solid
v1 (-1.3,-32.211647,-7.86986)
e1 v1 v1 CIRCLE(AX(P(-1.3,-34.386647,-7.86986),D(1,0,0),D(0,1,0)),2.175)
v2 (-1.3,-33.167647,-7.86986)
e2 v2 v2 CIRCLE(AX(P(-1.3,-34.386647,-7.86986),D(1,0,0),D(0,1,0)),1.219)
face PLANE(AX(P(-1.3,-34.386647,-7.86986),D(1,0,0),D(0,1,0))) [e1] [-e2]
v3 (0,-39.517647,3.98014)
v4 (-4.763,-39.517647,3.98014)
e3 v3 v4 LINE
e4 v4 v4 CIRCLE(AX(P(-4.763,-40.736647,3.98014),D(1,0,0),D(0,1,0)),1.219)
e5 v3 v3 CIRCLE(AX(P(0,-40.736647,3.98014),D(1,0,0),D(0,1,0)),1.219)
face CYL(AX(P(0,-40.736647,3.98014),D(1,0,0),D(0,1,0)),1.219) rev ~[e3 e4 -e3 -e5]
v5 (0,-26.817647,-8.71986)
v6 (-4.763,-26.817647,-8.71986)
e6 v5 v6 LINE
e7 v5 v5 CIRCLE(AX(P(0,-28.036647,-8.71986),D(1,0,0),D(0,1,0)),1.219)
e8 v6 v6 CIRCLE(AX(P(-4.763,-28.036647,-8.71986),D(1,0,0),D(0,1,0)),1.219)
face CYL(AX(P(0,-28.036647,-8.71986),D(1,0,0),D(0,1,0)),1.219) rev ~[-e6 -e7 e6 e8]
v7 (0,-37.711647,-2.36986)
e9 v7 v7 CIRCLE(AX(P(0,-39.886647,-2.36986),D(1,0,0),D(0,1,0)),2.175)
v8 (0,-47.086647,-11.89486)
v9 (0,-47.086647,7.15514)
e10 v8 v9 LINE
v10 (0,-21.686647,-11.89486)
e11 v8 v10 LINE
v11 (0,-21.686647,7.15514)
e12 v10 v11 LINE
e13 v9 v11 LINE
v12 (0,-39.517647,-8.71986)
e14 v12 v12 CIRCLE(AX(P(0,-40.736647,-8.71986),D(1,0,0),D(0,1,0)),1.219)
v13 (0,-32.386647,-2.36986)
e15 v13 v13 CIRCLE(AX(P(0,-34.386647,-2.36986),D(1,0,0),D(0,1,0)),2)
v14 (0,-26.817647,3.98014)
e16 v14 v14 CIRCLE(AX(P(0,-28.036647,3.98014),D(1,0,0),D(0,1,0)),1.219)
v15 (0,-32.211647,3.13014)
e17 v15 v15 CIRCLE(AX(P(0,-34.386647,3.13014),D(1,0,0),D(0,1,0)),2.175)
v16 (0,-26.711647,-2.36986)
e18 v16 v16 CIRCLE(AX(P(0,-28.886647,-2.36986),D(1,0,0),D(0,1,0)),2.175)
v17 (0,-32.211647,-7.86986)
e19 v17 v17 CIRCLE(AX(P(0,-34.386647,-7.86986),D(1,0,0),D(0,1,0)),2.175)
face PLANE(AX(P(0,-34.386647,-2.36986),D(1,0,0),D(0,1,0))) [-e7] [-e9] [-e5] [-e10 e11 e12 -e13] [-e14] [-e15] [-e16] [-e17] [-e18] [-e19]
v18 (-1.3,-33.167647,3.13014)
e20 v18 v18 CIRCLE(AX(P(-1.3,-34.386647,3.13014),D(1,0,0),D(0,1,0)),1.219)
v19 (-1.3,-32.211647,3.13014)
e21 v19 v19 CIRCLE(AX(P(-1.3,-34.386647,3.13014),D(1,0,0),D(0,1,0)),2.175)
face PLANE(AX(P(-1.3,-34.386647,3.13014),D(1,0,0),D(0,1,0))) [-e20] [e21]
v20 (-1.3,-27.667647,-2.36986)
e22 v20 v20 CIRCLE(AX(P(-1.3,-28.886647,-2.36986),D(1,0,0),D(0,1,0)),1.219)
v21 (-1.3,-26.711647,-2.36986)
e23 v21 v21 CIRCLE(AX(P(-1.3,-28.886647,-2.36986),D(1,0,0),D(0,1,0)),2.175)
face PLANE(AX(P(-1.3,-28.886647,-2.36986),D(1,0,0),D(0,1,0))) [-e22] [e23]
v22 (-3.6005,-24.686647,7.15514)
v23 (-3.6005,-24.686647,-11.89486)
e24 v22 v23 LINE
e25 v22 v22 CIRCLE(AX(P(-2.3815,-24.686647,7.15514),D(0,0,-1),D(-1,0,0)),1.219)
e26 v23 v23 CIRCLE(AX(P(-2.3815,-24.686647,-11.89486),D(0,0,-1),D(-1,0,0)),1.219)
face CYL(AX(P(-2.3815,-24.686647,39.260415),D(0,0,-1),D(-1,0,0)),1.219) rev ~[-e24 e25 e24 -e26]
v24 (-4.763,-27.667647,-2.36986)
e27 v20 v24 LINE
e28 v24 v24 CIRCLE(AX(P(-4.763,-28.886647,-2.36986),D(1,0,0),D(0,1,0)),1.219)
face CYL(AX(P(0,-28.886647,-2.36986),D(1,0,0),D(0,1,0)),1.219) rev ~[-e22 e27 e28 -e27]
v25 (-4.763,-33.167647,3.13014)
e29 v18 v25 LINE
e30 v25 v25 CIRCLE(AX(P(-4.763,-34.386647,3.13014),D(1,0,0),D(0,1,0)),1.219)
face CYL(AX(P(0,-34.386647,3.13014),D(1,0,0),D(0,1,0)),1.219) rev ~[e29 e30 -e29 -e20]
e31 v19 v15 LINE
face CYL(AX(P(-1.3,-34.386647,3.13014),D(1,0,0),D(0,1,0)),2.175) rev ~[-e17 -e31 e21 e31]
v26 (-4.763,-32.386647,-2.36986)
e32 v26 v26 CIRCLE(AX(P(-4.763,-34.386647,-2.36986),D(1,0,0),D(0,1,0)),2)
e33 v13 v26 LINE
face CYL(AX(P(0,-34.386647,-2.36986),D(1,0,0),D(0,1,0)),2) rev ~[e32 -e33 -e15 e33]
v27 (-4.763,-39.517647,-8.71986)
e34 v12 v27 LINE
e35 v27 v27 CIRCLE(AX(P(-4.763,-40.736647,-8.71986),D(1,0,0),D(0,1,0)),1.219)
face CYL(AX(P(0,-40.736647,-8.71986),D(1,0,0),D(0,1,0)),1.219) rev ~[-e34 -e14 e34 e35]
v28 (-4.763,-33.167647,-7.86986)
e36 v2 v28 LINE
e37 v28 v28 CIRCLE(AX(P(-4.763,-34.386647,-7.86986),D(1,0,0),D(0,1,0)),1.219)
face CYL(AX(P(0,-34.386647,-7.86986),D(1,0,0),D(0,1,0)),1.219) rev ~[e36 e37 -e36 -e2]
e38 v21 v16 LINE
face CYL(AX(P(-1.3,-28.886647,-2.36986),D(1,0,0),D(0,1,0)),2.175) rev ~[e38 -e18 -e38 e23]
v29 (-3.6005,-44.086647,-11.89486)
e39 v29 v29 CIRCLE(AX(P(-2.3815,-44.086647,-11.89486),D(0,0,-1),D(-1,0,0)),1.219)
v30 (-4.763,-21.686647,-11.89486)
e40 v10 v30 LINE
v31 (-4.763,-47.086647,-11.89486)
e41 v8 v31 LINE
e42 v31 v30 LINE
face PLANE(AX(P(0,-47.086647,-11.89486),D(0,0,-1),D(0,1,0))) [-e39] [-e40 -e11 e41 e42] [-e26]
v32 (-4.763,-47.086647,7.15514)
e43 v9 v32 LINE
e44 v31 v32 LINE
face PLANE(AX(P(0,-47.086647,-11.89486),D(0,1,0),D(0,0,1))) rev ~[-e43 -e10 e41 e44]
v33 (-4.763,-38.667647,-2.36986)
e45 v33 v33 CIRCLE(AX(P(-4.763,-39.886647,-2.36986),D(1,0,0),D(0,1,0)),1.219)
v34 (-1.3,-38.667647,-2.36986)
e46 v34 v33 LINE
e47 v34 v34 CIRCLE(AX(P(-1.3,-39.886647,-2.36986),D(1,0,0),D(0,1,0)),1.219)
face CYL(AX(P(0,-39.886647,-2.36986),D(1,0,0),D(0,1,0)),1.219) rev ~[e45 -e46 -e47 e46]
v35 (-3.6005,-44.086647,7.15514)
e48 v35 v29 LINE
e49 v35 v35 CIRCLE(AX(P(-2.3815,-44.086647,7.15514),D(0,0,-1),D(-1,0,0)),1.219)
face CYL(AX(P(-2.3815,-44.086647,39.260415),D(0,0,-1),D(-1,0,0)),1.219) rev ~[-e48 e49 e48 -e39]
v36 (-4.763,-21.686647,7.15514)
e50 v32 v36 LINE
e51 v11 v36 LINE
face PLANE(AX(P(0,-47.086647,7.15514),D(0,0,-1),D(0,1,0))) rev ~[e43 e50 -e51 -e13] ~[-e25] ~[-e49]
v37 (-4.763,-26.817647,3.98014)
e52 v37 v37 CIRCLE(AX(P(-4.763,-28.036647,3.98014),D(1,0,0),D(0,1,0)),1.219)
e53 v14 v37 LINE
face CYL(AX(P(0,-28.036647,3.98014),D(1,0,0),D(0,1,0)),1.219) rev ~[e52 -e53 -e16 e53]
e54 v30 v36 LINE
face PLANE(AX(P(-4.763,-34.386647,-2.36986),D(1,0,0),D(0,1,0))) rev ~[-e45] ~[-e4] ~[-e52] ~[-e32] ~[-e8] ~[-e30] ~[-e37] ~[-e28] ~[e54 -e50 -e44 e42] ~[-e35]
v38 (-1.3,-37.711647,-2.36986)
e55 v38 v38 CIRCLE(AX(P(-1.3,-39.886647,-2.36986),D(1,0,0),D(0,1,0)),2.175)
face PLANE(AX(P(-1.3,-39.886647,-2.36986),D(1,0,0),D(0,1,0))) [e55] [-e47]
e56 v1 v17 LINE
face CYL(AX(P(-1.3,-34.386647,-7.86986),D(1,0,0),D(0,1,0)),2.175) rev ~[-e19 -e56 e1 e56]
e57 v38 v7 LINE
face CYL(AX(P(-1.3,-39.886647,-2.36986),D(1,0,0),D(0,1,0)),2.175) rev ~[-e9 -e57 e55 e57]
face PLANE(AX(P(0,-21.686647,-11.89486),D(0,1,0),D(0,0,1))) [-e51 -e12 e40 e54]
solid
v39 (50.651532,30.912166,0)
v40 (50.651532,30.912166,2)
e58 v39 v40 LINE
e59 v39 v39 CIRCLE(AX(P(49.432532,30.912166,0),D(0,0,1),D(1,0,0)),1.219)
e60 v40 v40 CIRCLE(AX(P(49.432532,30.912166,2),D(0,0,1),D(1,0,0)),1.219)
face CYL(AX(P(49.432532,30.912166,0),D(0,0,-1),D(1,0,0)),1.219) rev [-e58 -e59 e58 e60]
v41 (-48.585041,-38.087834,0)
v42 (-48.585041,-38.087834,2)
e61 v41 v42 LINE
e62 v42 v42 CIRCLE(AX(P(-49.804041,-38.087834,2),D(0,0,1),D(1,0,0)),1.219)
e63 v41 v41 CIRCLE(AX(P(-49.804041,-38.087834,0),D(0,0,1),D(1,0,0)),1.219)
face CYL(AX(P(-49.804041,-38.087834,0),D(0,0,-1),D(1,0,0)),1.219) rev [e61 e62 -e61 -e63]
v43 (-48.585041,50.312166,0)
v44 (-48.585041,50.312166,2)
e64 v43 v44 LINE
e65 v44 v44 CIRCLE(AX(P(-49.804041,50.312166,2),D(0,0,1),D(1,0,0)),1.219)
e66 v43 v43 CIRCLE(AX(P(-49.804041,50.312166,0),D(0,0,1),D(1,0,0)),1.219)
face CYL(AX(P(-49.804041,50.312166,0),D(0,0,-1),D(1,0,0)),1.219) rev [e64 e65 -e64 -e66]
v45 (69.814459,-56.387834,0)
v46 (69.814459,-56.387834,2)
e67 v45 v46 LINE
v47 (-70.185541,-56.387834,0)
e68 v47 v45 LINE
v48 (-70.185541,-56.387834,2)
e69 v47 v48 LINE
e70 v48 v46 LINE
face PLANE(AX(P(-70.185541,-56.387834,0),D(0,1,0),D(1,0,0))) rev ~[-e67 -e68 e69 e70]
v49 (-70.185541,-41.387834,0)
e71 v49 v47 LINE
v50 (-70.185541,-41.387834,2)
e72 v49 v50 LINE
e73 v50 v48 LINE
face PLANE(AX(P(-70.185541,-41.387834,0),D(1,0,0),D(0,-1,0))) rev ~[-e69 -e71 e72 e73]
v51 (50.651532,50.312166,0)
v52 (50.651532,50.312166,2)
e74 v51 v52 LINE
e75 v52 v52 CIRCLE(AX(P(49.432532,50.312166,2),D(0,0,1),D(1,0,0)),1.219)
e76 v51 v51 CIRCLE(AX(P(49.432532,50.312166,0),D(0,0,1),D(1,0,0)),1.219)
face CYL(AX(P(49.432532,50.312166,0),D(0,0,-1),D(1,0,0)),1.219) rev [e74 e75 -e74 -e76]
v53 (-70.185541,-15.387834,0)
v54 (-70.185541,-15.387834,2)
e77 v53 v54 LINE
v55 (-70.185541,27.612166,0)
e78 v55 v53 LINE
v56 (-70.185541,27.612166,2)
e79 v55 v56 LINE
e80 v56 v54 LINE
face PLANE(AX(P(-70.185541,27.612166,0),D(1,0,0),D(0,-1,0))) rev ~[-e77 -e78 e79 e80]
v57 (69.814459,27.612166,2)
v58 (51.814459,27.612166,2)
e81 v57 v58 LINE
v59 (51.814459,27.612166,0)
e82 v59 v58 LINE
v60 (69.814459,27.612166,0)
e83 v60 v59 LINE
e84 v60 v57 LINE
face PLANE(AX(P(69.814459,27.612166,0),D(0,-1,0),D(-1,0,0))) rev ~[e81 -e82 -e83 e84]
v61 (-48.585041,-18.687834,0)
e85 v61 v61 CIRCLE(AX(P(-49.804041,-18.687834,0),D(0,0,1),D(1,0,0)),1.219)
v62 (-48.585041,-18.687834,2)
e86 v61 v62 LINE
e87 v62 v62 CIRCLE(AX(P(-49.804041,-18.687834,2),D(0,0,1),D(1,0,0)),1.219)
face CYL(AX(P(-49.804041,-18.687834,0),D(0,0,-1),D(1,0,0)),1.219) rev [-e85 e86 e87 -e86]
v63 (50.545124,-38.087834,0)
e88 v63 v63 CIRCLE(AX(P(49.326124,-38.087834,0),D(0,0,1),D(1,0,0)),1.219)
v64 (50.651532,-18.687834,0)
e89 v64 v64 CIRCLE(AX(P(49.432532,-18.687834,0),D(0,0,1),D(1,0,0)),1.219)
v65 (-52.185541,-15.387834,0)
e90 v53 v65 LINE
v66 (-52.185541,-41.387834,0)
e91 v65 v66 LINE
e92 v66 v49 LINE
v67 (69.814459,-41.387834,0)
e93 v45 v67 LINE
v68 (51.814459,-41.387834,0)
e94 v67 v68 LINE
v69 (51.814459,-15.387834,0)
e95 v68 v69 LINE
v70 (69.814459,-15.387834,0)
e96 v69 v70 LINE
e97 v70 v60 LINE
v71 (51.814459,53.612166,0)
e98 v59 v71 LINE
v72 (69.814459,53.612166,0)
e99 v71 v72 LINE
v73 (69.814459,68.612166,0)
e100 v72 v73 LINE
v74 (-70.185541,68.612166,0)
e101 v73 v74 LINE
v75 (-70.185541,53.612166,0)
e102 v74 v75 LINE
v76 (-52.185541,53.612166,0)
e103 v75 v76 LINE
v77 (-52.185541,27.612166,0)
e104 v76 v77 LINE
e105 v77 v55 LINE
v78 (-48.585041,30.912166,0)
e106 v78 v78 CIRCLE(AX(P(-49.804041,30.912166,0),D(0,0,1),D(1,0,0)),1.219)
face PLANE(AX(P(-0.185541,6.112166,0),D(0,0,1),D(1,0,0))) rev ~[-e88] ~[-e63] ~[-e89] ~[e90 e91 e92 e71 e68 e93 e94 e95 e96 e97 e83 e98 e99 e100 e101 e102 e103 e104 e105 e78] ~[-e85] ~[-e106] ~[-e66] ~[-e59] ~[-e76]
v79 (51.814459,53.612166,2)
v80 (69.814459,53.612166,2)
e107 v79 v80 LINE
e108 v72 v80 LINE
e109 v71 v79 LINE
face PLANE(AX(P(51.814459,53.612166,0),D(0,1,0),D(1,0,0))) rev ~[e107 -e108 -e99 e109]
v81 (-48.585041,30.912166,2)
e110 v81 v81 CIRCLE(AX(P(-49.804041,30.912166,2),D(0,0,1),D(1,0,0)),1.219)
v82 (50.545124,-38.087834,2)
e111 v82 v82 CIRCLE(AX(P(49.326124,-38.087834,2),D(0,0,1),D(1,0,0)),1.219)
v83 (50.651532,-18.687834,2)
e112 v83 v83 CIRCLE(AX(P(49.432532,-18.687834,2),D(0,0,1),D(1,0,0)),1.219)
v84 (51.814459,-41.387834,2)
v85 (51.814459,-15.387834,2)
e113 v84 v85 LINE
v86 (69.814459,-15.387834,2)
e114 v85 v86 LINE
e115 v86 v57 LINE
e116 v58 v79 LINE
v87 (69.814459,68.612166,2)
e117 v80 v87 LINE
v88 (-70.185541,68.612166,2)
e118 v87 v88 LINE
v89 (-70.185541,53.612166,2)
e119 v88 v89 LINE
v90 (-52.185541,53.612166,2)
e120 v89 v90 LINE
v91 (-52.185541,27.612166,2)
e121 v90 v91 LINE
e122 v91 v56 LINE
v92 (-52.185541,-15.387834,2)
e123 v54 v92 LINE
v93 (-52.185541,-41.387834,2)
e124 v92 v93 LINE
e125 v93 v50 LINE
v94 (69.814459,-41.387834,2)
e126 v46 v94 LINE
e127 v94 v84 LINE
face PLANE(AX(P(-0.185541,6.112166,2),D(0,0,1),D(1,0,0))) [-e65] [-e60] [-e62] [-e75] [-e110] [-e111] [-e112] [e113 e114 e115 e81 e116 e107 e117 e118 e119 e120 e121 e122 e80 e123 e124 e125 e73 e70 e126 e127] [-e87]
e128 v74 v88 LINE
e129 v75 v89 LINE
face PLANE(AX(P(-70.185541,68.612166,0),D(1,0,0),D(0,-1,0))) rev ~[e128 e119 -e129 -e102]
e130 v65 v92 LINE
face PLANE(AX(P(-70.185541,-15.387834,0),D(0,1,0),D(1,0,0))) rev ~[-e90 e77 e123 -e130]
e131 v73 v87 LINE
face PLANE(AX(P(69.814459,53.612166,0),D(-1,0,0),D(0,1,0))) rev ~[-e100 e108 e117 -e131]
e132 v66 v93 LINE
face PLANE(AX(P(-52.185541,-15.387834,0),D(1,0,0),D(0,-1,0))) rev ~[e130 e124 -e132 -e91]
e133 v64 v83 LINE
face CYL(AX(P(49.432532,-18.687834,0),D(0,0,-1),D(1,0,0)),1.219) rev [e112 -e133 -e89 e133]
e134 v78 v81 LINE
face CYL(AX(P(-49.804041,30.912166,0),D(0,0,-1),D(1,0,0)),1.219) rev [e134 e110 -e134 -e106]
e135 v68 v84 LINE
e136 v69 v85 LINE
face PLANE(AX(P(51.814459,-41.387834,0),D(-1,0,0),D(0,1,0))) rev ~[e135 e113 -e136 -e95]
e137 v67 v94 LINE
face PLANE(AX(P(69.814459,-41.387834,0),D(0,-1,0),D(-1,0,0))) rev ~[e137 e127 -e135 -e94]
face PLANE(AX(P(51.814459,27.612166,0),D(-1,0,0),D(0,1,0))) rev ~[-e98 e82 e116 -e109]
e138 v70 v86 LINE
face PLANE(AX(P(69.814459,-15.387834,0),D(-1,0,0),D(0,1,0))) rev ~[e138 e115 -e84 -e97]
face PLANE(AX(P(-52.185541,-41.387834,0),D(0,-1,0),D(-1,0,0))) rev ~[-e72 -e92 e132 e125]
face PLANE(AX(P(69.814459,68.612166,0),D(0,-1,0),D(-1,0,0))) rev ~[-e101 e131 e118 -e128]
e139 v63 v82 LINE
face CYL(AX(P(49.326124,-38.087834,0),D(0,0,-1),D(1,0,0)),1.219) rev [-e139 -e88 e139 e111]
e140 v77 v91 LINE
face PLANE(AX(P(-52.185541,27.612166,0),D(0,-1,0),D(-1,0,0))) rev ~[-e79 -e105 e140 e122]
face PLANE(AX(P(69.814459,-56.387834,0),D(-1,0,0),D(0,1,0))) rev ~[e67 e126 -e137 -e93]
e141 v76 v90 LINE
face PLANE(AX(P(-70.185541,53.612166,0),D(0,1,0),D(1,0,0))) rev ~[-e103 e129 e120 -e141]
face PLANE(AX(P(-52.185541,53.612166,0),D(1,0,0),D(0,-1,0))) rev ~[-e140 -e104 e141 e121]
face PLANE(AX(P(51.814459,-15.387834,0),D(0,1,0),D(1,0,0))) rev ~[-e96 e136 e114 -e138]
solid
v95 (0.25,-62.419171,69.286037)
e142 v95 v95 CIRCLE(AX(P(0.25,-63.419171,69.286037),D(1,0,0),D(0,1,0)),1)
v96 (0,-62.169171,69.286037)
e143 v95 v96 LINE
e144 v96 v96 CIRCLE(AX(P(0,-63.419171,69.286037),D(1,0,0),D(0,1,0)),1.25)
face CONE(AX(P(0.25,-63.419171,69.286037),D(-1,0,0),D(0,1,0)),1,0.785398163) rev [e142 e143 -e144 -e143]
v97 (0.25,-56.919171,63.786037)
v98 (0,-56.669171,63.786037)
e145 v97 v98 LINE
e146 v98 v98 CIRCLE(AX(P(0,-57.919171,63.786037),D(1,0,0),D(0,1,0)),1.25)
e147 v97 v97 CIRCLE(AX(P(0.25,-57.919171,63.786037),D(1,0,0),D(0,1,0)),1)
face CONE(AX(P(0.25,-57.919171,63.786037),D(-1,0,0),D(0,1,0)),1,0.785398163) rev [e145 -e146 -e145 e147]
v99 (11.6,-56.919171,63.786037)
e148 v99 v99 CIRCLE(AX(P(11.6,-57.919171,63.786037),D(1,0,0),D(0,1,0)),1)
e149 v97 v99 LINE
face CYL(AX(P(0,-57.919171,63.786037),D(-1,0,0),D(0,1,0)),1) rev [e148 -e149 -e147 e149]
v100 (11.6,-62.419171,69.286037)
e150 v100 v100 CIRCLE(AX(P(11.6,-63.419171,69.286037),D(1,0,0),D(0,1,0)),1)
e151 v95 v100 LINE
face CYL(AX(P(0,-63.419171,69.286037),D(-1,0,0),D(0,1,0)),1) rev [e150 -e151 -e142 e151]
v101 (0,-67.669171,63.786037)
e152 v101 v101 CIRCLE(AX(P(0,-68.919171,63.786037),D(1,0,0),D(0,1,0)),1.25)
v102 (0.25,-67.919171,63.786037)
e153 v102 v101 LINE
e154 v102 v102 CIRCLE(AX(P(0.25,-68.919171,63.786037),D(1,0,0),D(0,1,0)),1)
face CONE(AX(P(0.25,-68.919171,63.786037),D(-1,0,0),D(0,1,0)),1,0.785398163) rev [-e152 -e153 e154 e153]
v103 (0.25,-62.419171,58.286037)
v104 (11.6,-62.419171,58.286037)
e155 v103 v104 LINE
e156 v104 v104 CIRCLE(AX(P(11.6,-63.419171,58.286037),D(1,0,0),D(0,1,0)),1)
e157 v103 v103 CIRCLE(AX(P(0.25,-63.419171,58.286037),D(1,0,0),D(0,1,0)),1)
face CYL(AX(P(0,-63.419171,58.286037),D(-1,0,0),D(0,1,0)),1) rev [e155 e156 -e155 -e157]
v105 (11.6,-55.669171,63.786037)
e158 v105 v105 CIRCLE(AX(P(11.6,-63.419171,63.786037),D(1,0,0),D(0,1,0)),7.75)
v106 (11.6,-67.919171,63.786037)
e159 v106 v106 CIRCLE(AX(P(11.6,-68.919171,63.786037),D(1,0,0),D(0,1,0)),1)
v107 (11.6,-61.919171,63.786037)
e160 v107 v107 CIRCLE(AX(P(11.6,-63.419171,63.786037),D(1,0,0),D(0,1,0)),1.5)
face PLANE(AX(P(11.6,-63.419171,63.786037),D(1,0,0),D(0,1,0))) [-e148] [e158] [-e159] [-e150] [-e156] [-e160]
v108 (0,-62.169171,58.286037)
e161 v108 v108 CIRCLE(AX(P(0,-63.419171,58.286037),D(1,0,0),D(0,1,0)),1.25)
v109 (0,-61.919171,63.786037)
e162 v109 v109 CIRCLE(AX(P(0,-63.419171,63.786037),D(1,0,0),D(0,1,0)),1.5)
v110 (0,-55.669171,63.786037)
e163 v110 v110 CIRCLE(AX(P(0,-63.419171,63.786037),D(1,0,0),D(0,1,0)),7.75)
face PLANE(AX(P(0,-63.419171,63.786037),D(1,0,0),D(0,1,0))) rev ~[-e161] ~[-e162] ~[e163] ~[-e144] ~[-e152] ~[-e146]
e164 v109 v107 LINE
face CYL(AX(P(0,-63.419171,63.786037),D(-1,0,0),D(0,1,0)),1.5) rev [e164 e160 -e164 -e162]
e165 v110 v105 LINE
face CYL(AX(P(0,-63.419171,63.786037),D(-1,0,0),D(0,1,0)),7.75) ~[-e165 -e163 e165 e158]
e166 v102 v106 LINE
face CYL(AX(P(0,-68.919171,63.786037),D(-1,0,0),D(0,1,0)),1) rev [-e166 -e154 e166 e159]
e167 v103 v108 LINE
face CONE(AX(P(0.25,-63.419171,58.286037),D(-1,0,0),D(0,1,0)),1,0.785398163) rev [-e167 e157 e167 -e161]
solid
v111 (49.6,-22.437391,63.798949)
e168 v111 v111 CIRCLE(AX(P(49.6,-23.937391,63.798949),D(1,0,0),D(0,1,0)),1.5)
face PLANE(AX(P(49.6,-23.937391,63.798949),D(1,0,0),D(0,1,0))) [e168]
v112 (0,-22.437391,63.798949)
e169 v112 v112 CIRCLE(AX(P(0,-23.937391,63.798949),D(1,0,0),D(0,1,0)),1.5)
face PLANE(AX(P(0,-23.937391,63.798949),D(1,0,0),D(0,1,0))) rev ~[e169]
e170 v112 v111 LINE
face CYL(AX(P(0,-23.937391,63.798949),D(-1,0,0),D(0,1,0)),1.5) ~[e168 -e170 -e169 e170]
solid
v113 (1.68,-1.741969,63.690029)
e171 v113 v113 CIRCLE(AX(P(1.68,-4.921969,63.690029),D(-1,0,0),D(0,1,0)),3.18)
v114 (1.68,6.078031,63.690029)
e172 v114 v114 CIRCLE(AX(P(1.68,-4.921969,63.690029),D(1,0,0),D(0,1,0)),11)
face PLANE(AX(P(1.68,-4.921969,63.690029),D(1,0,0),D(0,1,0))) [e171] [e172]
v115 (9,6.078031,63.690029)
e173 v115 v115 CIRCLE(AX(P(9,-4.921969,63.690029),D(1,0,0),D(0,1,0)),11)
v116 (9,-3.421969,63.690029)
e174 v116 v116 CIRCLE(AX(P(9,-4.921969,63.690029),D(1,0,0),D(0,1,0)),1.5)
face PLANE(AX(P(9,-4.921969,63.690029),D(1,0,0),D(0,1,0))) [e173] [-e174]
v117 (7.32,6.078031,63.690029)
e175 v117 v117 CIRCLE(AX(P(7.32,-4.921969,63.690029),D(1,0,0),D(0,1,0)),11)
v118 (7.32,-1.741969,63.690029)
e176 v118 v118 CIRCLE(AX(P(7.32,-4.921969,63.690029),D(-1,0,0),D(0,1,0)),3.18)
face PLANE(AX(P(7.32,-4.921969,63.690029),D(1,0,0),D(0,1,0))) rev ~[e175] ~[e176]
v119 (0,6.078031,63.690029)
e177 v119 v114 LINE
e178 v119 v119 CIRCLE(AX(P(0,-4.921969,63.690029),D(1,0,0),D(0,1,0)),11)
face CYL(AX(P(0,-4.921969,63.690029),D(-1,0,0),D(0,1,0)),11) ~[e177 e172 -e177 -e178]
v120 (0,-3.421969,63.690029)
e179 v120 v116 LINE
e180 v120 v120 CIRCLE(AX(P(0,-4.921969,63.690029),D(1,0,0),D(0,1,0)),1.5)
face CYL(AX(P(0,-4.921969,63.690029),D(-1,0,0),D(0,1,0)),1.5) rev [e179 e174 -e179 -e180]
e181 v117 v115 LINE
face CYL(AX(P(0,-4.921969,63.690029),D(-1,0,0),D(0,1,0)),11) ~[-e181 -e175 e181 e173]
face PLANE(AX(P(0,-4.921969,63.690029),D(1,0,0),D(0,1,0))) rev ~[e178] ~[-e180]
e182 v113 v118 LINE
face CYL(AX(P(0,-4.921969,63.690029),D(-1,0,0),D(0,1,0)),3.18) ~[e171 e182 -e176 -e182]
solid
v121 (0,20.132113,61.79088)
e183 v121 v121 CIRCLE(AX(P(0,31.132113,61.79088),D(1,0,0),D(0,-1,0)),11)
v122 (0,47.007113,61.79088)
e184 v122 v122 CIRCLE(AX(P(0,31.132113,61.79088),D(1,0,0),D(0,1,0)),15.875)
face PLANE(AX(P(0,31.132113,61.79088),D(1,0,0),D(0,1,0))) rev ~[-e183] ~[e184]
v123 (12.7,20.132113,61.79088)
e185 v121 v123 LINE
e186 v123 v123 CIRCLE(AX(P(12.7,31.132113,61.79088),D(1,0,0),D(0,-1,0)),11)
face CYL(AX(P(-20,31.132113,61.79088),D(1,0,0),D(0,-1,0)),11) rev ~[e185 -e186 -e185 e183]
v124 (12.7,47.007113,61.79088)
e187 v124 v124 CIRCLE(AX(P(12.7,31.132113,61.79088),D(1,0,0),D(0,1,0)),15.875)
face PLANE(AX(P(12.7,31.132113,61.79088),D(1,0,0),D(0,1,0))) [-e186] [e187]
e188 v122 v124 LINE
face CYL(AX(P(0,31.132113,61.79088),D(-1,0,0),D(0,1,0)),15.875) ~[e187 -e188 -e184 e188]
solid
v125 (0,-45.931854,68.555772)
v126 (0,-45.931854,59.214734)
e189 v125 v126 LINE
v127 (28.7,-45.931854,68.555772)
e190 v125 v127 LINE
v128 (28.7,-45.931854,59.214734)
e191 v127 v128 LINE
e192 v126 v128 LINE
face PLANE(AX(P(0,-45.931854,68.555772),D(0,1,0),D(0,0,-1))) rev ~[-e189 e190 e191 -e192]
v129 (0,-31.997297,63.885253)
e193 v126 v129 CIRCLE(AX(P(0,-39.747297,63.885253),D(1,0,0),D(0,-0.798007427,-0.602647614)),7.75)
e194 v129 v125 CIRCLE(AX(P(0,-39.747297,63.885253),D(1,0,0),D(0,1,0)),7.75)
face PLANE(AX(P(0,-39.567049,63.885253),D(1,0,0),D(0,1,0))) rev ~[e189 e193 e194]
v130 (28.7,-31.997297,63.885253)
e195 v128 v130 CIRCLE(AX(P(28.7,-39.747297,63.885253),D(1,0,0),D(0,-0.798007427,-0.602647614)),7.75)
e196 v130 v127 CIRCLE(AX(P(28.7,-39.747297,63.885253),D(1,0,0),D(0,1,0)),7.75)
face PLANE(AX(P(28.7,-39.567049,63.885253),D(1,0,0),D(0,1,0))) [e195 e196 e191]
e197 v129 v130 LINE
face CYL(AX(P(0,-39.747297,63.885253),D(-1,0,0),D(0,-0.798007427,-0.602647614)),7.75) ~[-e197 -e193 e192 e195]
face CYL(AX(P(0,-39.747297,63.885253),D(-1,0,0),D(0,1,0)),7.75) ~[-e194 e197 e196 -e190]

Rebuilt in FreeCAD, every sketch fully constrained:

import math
import FreeCAD as App
import Part
import Sketcher
from FreeCAD import Vector


def edges_at(feature, points):
    """Names of the edges that pass closest to the given points."""
    edges = feature.Shape.Edges
    near = lambda p: min(range(len(edges)), key=lambda i: edges[i].distToShape(Part.Vertex(*p))[0])
    return sorted({f"Edge{near(p) + 1}" for p in points})


def faces_at(feature, points):
    """Names of the faces that lie closest to the given points."""
    faces = feature.Shape.Faces
    near = lambda p: min(range(len(faces)), key=lambda i: faces[i].distToShape(Part.Vertex(*p))[0])
    return sorted({f"Face{near(p) + 1}" for p in points})


def add_polygon(sketch, points):
    """Adds a closed chain of lines whose ends are joined by coincident constraints."""
    first, n = sketch.GeometryCount, len(points)
    for a, b in zip(points, points[1:] + points[:1]):
        sketch.addGeometry(Part.LineSegment(App.Vector(*a, 0), App.Vector(*b, 0)), False)
    for i in range(n):
        sketch.addConstraint(Sketcher.Constraint("Coincident", first + i, 2, first + (i + 1) % n, 1))

doc = App.newDocument("Part")
body = doc.addObject("PartDesign::Body", "Body")

sketch1 = body.newObject("Sketcher::SketchObject", "Sketch")
sketch1.AttachmentSupport = (doc.getObject("XY_Plane"), [""])
sketch1.MapMode = "FlatFace"
add_polygon(sketch1, [(69.8, 53.6), (69.8, 68.6), (-70.2, 68.6), (-70.2, 53.6), (-52.2, 53.6), (-52.2, 27.6), (-70.2, 27.6), (-70.2, -15.4), (-52.2, -15.4), (-52.2, -41.4), (-70.2, -41.4), (-70.2, -56.4), (69.8, -56.4), (69.8, -41.4), (51.8, -41.4), (51.8, -15.4), (69.8, -15.4), (69.8, 27.6), (51.8, 27.6), (51.8, 53.6)])
sketch1.addGeometry(Part.Circle(Vector(-49.8, -38.1, 0), Vector(0, 0, 1), 1.2), False)
sketch1.addGeometry(Part.Circle(Vector(-49.8, -18.7, 0), Vector(0, 0, 1), 1.2), False)
sketch1.addGeometry(Part.Circle(Vector(49.3, -38.1, 0), Vector(0, 0, 1), 1.2), False)
sketch1.addGeometry(Part.Circle(Vector(49.4, -18.7, 0), Vector(0, 0, 1), 1.2), False)
sketch1.addGeometry(Part.Circle(Vector(-49.8, 30.9, 0), Vector(0, 0, 1), 1.2), False)
sketch1.addGeometry(Part.Circle(Vector(-49.8, 50.3, 0), Vector(0, 0, 1), 1.2), False)
sketch1.addGeometry(Part.Circle(Vector(49.4, 30.9, 0), Vector(0, 0, 1), 1.2), False)
sketch1.addGeometry(Part.Circle(Vector(49.4, 50.3, 0), Vector(0, 0, 1), 1.2), False)
sketch1.addConstraint(Sketcher.Constraint("Vertical", 0))
sketch1.addConstraint(Sketcher.Constraint("Horizontal", 1))
sketch1.addConstraint(Sketcher.Constraint("Vertical", 2))
sketch1.addConstraint(Sketcher.Constraint("Horizontal", 3))
sketch1.addConstraint(Sketcher.Constraint("Vertical", 4))
sketch1.addConstraint(Sketcher.Constraint("Horizontal", 5))
sketch1.addConstraint(Sketcher.Constraint("Vertical", 6))
sketch1.addConstraint(Sketcher.Constraint("Horizontal", 7))
sketch1.addConstraint(Sketcher.Constraint("Vertical", 8))
sketch1.addConstraint(Sketcher.Constraint("Horizontal", 9))
sketch1.addConstraint(Sketcher.Constraint("Vertical", 10))
sketch1.addConstraint(Sketcher.Constraint("Horizontal", 11))
sketch1.addConstraint(Sketcher.Constraint("Vertical", 12))
sketch1.addConstraint(Sketcher.Constraint("Horizontal", 13))
sketch1.addConstraint(Sketcher.Constraint("Vertical", 14))
sketch1.addConstraint(Sketcher.Constraint("Horizontal", 15))
sketch1.addConstraint(Sketcher.Constraint("Vertical", 16))
sketch1.addConstraint(Sketcher.Constraint("Horizontal", 17))
sketch1.addConstraint(Sketcher.Constraint("Vertical", 18))
sketch1.addConstraint(Sketcher.Constraint("Horizontal", 19))
sketch1.addConstraint(Sketcher.Constraint("Equal", 20, 21))
sketch1.addConstraint(Sketcher.Constraint("Equal", 21, 22))
sketch1.addConstraint(Sketcher.Constraint("Equal", 22, 23))
sketch1.addConstraint(Sketcher.Constraint("Equal", 23, 24))
sketch1.addConstraint(Sketcher.Constraint("Equal", 24, 25))
sketch1.addConstraint(Sketcher.Constraint("Equal", 25, 26))
sketch1.addConstraint(Sketcher.Constraint("Equal", 26, 27))
sketch1.addConstraint(Sketcher.Constraint("Horizontal", 20, 3, 22, 3))
sketch1.addConstraint(Sketcher.Constraint("Horizontal", 21, 3, 23, 3))
sketch1.addConstraint(Sketcher.Constraint("Horizontal", 24, 3, 26, 3))
sketch1.addConstraint(Sketcher.Constraint("Horizontal", 25, 3, 27, 3))
sketch1.addConstraint(Sketcher.Constraint("Horizontal", 9, 2, 12, 2))
sketch1.addConstraint(Sketcher.Constraint("Horizontal", 7, 2, 14, 2))
sketch1.addConstraint(Sketcher.Constraint("Horizontal", 5, 2, 16, 2))
sketch1.addConstraint(Sketcher.Constraint("Horizontal", 3, 2, 18, 2))
sketch1.addConstraint(Sketcher.Constraint("Vertical", 20, 3, 21, 3))
sketch1.addConstraint(Sketcher.Constraint("Vertical", 21, 3, 24, 3))
sketch1.addConstraint(Sketcher.Constraint("Vertical", 24, 3, 25, 3))
sketch1.addConstraint(Sketcher.Constraint("Vertical", 23, 3, 26, 3))
sketch1.addConstraint(Sketcher.Constraint("Vertical", 26, 3, 27, 3))
sketch1.addConstraint(Sketcher.Constraint("Vertical", 2, 2, 5, 2))
sketch1.addConstraint(Sketcher.Constraint("Vertical", 4, 2, 7, 2))
sketch1.addConstraint(Sketcher.Constraint("Vertical", 6, 2, 9, 2))
sketch1.addConstraint(Sketcher.Constraint("Vertical", 0, 2, 11, 2))
sketch1.addConstraint(Sketcher.Constraint("Vertical", 12, 2, 15, 2))
sketch1.addConstraint(Sketcher.Constraint("Vertical", 14, 2, 17, 2))
sketch1.addConstraint(Sketcher.Constraint("Equal", 9, 13))
sketch1.addConstraint(Sketcher.Constraint("Equal", 4, 8))
sketch1.addConstraint(Sketcher.Constraint("Equal", 2, 10))
sketch1.addConstraint(Sketcher.Constraint("DistanceX", 1, 2, 1, 1, 140.0))
sketch1.addConstraint(Sketcher.Constraint("DistanceX", 3, 1, 3, 2, 18.0))
sketch1.addConstraint(Sketcher.Constraint("DistanceY", 0, 1, 0, 2, 15.0))
sketch1.addConstraint(Sketcher.Constraint("DistanceY", 4, 2, 4, 1, 26.0))
sketch1.addConstraint(Sketcher.Constraint("DistanceY", 6, 2, 6, 1, 43.0))
sketch1.addConstraint(Sketcher.Constraint("Diameter", 20, 2.438))
sketch1.addConstraint(Sketcher.Constraint("DistanceY", 20, 3, 24, 3, 69.0))
sketch1.addConstraint(Sketcher.Constraint("DistanceY", 21, 3, 25, 3, 69.0))
sketch1.addConstraint(Sketcher.Constraint("DistanceY", 20, 3, 21, 3, 19.4))
sketch1.addConstraint(Sketcher.Constraint("DistanceY", 27, 3, 0, 2, 18.3))
sketch1.addConstraint(Sketcher.Constraint("DistanceX", 25, 3, 0, 2, 119.6185))
sketch1.addConstraint(Sketcher.Constraint("DistanceX", 20, 3, -1, 1, 49.804041))
sketch1.addConstraint(Sketcher.Constraint("DistanceX", 22, 3, 23, 3, 0.106408))
sketch1.addConstraint(Sketcher.Constraint("DistanceY", 20, 3, -1, 1, 38.087834))
sketch1.addConstraint(Sketcher.Constraint("DistanceX", -1, 1, 22, 3, 49.326124))
pad1 = body.newObject("PartDesign::Pad", "Pad")
pad1.Profile = sketch1
pad1.Length = 2
body2 = doc.addObject("PartDesign::Body", "Body001")

sketch2 = body2.newObject("Sketcher::SketchObject", "Sketch001")
sketch2.AttachmentSupport = (doc.getObject("YZ_Plane001"), [""])
sketch2.MapMode = "FlatFace"
add_polygon(sketch2, [(-47.1, 7.2), (-47.1, -11.9), (-21.7, -11.9), (-21.7, 7.2)])
sketch2.addGeometry(Part.Circle(Vector(-40.7, -8.7, 0), Vector(0, 0, 1), 1.2), False)
sketch2.addGeometry(Part.Circle(Vector(-39.9, -2.4, 0), Vector(0, 0, 1), 1.2), False)
sketch2.addGeometry(Part.Circle(Vector(-34.4, -7.9, 0), Vector(0, 0, 1), 1.2), False)
sketch2.addGeometry(Part.Circle(Vector(-28, -8.7, 0), Vector(0, 0, 1), 1.2), False)
sketch2.addGeometry(Part.Circle(Vector(-34.4, -2.4, 0), Vector(0, 0, 1), 2), False)
sketch2.addGeometry(Part.Circle(Vector(-28.9, -2.4, 0), Vector(0, 0, 1), 1.2), False)
sketch2.addGeometry(Part.Circle(Vector(-40.7, 4, 0), Vector(0, 0, 1), 1.2), False)
sketch2.addGeometry(Part.Circle(Vector(-34.4, 3.1, 0), Vector(0, 0, 1), 1.2), False)
sketch2.addGeometry(Part.Circle(Vector(-28, 4, 0), Vector(0, 0, 1), 1.2), False)
sketch2.addConstraint(Sketcher.Constraint("Vertical", 0))
sketch2.addConstraint(Sketcher.Constraint("Horizontal", 1))
sketch2.addConstraint(Sketcher.Constraint("Vertical", 2))
sketch2.addConstraint(Sketcher.Constraint("Horizontal", 3))
sketch2.addConstraint(Sketcher.Constraint("Equal", 4, 5))
sketch2.addConstraint(Sketcher.Constraint("Equal", 5, 6))
sketch2.addConstraint(Sketcher.Constraint("Equal", 6, 7))
sketch2.addConstraint(Sketcher.Constraint("Equal", 7, 9))
sketch2.addConstraint(Sketcher.Constraint("Equal", 9, 10))
sketch2.addConstraint(Sketcher.Constraint("Equal", 10, 11))
sketch2.addConstraint(Sketcher.Constraint("Equal", 11, 12))
sketch2.addConstraint(Sketcher.Constraint("Horizontal", 4, 3, 7, 3))
sketch2.addConstraint(Sketcher.Constraint("Horizontal", 5, 3, 8, 3))
sketch2.addConstraint(Sketcher.Constraint("Horizontal", 8, 3, 9, 3))
sketch2.addConstraint(Sketcher.Constraint("Horizontal", 10, 3, 12, 3))
sketch2.addConstraint(Sketcher.Constraint("Vertical", 6, 3, 8, 3))
sketch2.addConstraint(Sketcher.Constraint("Vertical", 4, 3, 10, 3))
sketch2.addConstraint(Sketcher.Constraint("Vertical", 8, 3, 11, 3))
sketch2.addConstraint(Sketcher.Constraint("Vertical", 7, 3, 12, 3))
sketch2.addConstraint(Sketcher.Constraint("Diameter", 8, 4.0))
sketch2.addConstraint(Sketcher.Constraint("Diameter", 4, 2.438))
sketch2.addConstraint(Sketcher.Constraint("DistanceX", 1, 1, 1, 2, 25.4))
sketch2.addConstraint(Sketcher.Constraint("DistanceX", 5, 3, 9, 3, 11.0))
sketch2.addConstraint(Sketcher.Constraint("DistanceY", 6, 3, 11, 3, 11.0))
sketch2.addConstraint(Sketcher.Constraint("DistanceY", 0, 2, 0, 1, 19.05))
sketch2.addConstraint(Sketcher.Constraint("DistanceX", 5, 3, 6, 3, 5.5))
sketch2.addConstraint(Sketcher.Constraint("DistanceY", 6, 3, 5, 3, 5.5))
sketch2.addConstraint(Sketcher.Constraint("DistanceX", 4, 3, 7, 3, 12.7))
sketch2.addConstraint(Sketcher.Constraint("DistanceY", 4, 3, 10, 3, 12.7))
sketch2.addConstraint(Sketcher.Constraint("DistanceX", 0, 2, 5, 3, 7.2))
sketch2.addConstraint(Sketcher.Constraint("DistanceX", 4, 3, 5, 3, 0.85))
sketch2.addConstraint(Sketcher.Constraint("DistanceY", 4, 3, 5, 3, 6.35))
sketch2.addConstraint(Sketcher.Constraint("DistanceY", 0, 2, 4, 3, 3.175))
sketch2.addConstraint(Sketcher.Constraint("DistanceY", 4, 3, -1, 1, 8.71986))
sketch2.addConstraint(Sketcher.Constraint("DistanceX", 4, 3, -1, 1, 40.736647))
pad2 = body2.newObject("PartDesign::Pad", "Pad001")
pad2.Profile = sketch2
pad2.Length = 4.763
pad2.Reversed = True

sketch3 = body2.newObject("Sketcher::SketchObject", "Sketch002")
sketch3.AttachmentSupport = (doc.getObject("YZ_Plane001"), [""])
sketch3.MapMode = "FlatFace"
sketch3.addGeometry(Part.Circle(Vector(-39.9, -2.4, 0), Vector(0, 0, 1), 1.2), False)
sketch3.addGeometry(Part.Circle(Vector(-34.4, 3.1, 0), Vector(0, 0, 1), 1.2), False)
sketch3.addGeometry(Part.Circle(Vector(-28.9, -2.4, 0), Vector(0, 0, 1), 1.2), False)
sketch3.addGeometry(Part.Circle(Vector(-34.4, -7.9, 0), Vector(0, 0, 1), 1.2), False)
sketch3.addConstraint(Sketcher.Constraint("Equal", 0, 1))
sketch3.addConstraint(Sketcher.Constraint("Equal", 1, 2))
sketch3.addConstraint(Sketcher.Constraint("Equal", 2, 3))
sketch3.addConstraint(Sketcher.Constraint("Horizontal", 0, 3, 2, 3))
sketch3.addConstraint(Sketcher.Constraint("Vertical", 1, 3, 3, 3))
sketch3.addConstraint(Sketcher.Constraint("Diameter", 0, 2.438))
sketch3.addConstraint(Sketcher.Constraint("DistanceX", 0, 3, 2, 3, 11.0))
sketch3.addConstraint(Sketcher.Constraint("DistanceY", 3, 3, 1, 3, 11.0))
sketch3.addConstraint(Sketcher.Constraint("DistanceX", 0, 3, 1, 3, 5.5))
sketch3.addConstraint(Sketcher.Constraint("DistanceY", 0, 3, 1, 3, 5.5))
sketch3.addConstraint(Sketcher.Constraint("DistanceY", 0, 3, -1, 1, 2.36986))
sketch3.addConstraint(Sketcher.Constraint("DistanceX", 0, 3, -1, 1, 39.886647))
doc.recompute()
hole = body2.newObject("PartDesign::Hole", "Hole")
hole.Profile = sketch3
hole.ThreadType = "None"
hole.Diameter = 2.438
hole.DepthType = "ThroughAll"
hole.HoleCutType = "Counterbore"
hole.HoleCutDiameter = 4.35
hole.HoleCutDepth = 1.3

sketch4 = body2.newObject("Sketcher::SketchObject", "Sketch003")
sketch4.AttachmentSupport = (doc.getObject("XY_Plane001"), [""])
sketch4.MapMode = "FlatFace"
sketch4.AttachmentOffset = App.Placement(Vector(0, 0, 7.15514), App.Rotation())
sketch4.addGeometry(Part.Circle(Vector(-2.4, -44.1, 0), Vector(0, 0, 1), 1.2), False)
sketch4.addGeometry(Part.Circle(Vector(-2.4, -24.7, 0), Vector(0, 0, 1), 1.2), False)
sketch4.addConstraint(Sketcher.Constraint("Equal", 0, 1))
sketch4.addConstraint(Sketcher.Constraint("Vertical", 0, 3, 1, 3))
sketch4.addConstraint(Sketcher.Constraint("Diameter", 0, 2.438))
sketch4.addConstraint(Sketcher.Constraint("DistanceY", 0, 3, 1, 3, 19.4))
sketch4.addConstraint(Sketcher.Constraint("DistanceX", 0, 3, -1, 1, 2.3815))
sketch4.addConstraint(Sketcher.Constraint("DistanceY", 0, 3, -1, 1, 44.086647))
doc.recompute()
hole2 = body2.newObject("PartDesign::Hole", "Hole001")
hole2.Profile = sketch4
hole2.ThreadType = "None"
hole2.Diameter = 2.438
hole2.DepthType = "ThroughAll"
body3 = doc.addObject("PartDesign::Body", "Body002")

sketch5 = body3.newObject("Sketcher::SketchObject", "Sketch004")
sketch5.AttachmentSupport = (doc.getObject("YZ_Plane002"), [""])
sketch5.MapMode = "FlatFace"
sketch5.addGeometry(Part.Circle(Vector(-63.4, 63.8, 0), Vector(0, 0, 1), 7.8), False)
sketch5.addGeometry(Part.Circle(Vector(-63.4, 58.3, 0), Vector(0, 0, 1), 1), False)
sketch5.addGeometry(Part.Circle(Vector(-68.9, 63.8, 0), Vector(0, 0, 1), 1), False)
sketch5.addGeometry(Part.Circle(Vector(-63.4, 63.8, 0), Vector(0, 0, 1), 1.5), False)
sketch5.addGeometry(Part.Circle(Vector(-63.4, 69.3, 0), Vector(0, 0, 1), 1), False)
sketch5.addGeometry(Part.Circle(Vector(-57.9, 63.8, 0), Vector(0, 0, 1), 1), False)
sketch5.addConstraint(Sketcher.Constraint("Coincident", 3, 3, 0, 3))
sketch5.addConstraint(Sketcher.Constraint("Equal", 1, 2))
sketch5.addConstraint(Sketcher.Constraint("Equal", 2, 4))
sketch5.addConstraint(Sketcher.Constraint("Equal", 4, 5))
sketch5.addConstraint(Sketcher.Constraint("Horizontal", 0, 3, 2, 3))
sketch5.addConstraint(Sketcher.Constraint("Horizontal", 3, 3, 5, 3))
sketch5.addConstraint(Sketcher.Constraint("Vertical", 0, 3, 1, 3))
sketch5.addConstraint(Sketcher.Constraint("Vertical", 3, 3, 4, 3))
sketch5.addConstraint(Sketcher.Constraint("Diameter", 1, 2.0))
sketch5.addConstraint(Sketcher.Constraint("Diameter", 3, 3.0))
sketch5.addConstraint(Sketcher.Constraint("Diameter", 0, 15.5))
sketch5.addConstraint(Sketcher.Constraint("DistanceY", 1, 3, 4, 3, 11.0))
sketch5.addConstraint(Sketcher.Constraint("DistanceX", 2, 3, 5, 3, 11.0))
sketch5.addConstraint(Sketcher.Constraint("DistanceY", 1, 3, 0, 3, 5.5))
sketch5.addConstraint(Sketcher.Constraint("DistanceX", 2, 3, 0, 3, 5.5))
sketch5.addConstraint(Sketcher.Constraint("DistanceX", 0, 3, -1, 1, 63.419171))
sketch5.addConstraint(Sketcher.Constraint("DistanceY", -1, 1, 0, 3, 63.786037))
pad3 = body3.newObject("PartDesign::Pad", "Pad002")
pad3.Profile = sketch5
pad3.Length = 11.6
doc.recompute()

chamfer = body3.newObject("PartDesign::Chamfer", "Chamfer")
chamfer.Base = (pad3, edges_at(pad3, [
    (0, -64.419, 69.286),
    (0, -58.919, 63.786),
    (0, -69.919, 63.786),
    (0, -64.419, 58.286),
]))
chamfer.Size = 0.25
body4 = doc.addObject("PartDesign::Body", "Body003")

sketch6 = body4.newObject("Sketcher::SketchObject", "Sketch005")
sketch6.AttachmentSupport = (doc.getObject("YZ_Plane003"), [""])
sketch6.MapMode = "FlatFace"
sketch6.addGeometry(Part.ArcOfCircle(Part.Circle(Vector(-40, 64, 0), Vector(0, 0, 1), 8), math.radians(-143), math.radians(0)), False)
sketch6.addGeometry(Part.ArcOfCircle(Part.Circle(Vector(-40, 64, 0), Vector(0, 0, 1), 8), math.radians(0), math.radians(143)), False)
sketch6.addGeometry(Part.LineSegment(Vector(-46, 69, 0), Vector(-46, 59, 0)), False)
sketch6.addConstraint(Sketcher.Constraint("Tangent", 0, 2, 1, 1))
sketch6.addConstraint(Sketcher.Constraint("Coincident", 1, 2, 2, 1))
sketch6.addConstraint(Sketcher.Constraint("Coincident", 2, 2, 0, 1))
sketch6.addConstraint(Sketcher.Constraint("Vertical", 2))
sketch6.addConstraint(Sketcher.Constraint("Equal", 0, 1))
sketch6.addConstraint(Sketcher.Constraint("Horizontal", 1, 3, 0, 2))
sketch6.addConstraint(Sketcher.Constraint("Radius", 0, 7.75))
sketch6.addConstraint(Sketcher.Constraint("DistanceY", 2, 2, 2, 1, 9.341038))
sketch6.addConstraint(Sketcher.Constraint("DistanceY", -1, 1, 1, 2, 68.555772))
sketch6.addConstraint(Sketcher.Constraint("DistanceX", 0, 3, -1, 1, 39.747297))
pad4 = body4.newObject("PartDesign::Pad", "Pad003")
pad4.Profile = sketch6
pad4.Length = 28.7
body5 = doc.addObject("PartDesign::Body", "Body004")

sketch7 = body5.newObject("Sketcher::SketchObject", "Sketch006")
sketch7.AttachmentSupport = (doc.getObject("YZ_Plane004"), [""])
sketch7.MapMode = "FlatFace"
sketch7.addGeometry(Part.Circle(Vector(-23.9, 63.8, 0), Vector(0, 0, 1), 1.5), False)
sketch7.addConstraint(Sketcher.Constraint("Diameter", 0, 3.0))
sketch7.addConstraint(Sketcher.Constraint("DistanceX", 0, 3, -1, 1, 23.937391))
sketch7.addConstraint(Sketcher.Constraint("DistanceY", -1, 1, 0, 3, 63.798949))
pad5 = body5.newObject("PartDesign::Pad", "Pad004")
pad5.Profile = sketch7
pad5.Length = 49.6
body6 = doc.addObject("PartDesign::Body", "Body005")

sketch8 = body6.newObject("Sketcher::SketchObject", "Sketch007")
sketch8.AttachmentSupport = (doc.getObject("YZ_Plane005"), [""])
sketch8.MapMode = "FlatFace"
sketch8.addGeometry(Part.Circle(Vector(-4.9, 63.7, 0), Vector(0, 0, 1), 11), False)
sketch8.addGeometry(Part.Circle(Vector(-4.9, 63.7, 0), Vector(0, 0, 1), 1.5), False)
sketch8.addConstraint(Sketcher.Constraint("Coincident", 1, 3, 0, 3))
sketch8.addConstraint(Sketcher.Constraint("Diameter", 0, 22.0))
sketch8.addConstraint(Sketcher.Constraint("Diameter", 1, 3.0))
sketch8.addConstraint(Sketcher.Constraint("DistanceX", 0, 3, -1, 1, 4.921969))
sketch8.addConstraint(Sketcher.Constraint("DistanceY", -1, 1, 0, 3, 63.690029))
pad6 = body6.newObject("PartDesign::Pad", "Pad005")
pad6.Profile = sketch8
pad6.Length = 9
doc.recompute()

thickness = body6.newObject("PartDesign::Thickness", "Thickness")
thickness.Base = (pad6, faces_at(pad6, [(4.5, -15.922, 63.69)]))
thickness.Value = 1.68
thickness.Reversed = True
thickness.Join = "Arc"
body7 = doc.addObject("PartDesign::Body", "Body006")

sketch9 = body7.newObject("Sketcher::SketchObject", "Sketch008")
sketch9.AttachmentSupport = (doc.getObject("YZ_Plane006"), [""])
sketch9.MapMode = "FlatFace"
sketch9.addGeometry(Part.Circle(Vector(31.1, 61.8, 0), Vector(0, 0, 1), 15.9), False)
sketch9.addGeometry(Part.Circle(Vector(31.1, 61.8, 0), Vector(0, 0, 1), 3.2), False)
sketch9.addConstraint(Sketcher.Constraint("Coincident", 1, 3, 0, 3))
sketch9.addConstraint(Sketcher.Constraint("Diameter", 0, 31.75))
sketch9.addConstraint(Sketcher.Constraint("Diameter", 1, 6.36))
sketch9.addConstraint(Sketcher.Constraint("DistanceY", -1, 1, 0, 3, 61.79088))
sketch9.addConstraint(Sketcher.Constraint("DistanceX", -1, 1, 0, 3, 31.132113))
pad7 = body7.newObject("PartDesign::Pad", "Pad006")
pad7.Profile = sketch9
pad7.Length = 12.7

sketch10 = body7.newObject("Sketcher::SketchObject", "Sketch009")
sketch10.AttachmentSupport = (doc.getObject("YZ_Plane006"), [""])
sketch10.MapMode = "FlatFace"
sketch10.addGeometry(Part.Circle(Vector(31, 62, 0), Vector(0, 0, 1), 11), False)
sketch10.addConstraint(Sketcher.Constraint("Diameter", 0, 22.0))
sketch10.addConstraint(Sketcher.Constraint("DistanceY", -1, 1, 0, 3, 61.79088))
sketch10.addConstraint(Sketcher.Constraint("DistanceX", -1, 1, 0, 3, 31.132113))
doc.recompute()
hole3 = body7.newObject("PartDesign::Hole", "Hole002")
hole3.Profile = sketch10
hole3.ThreadType = "None"
hole3.Diameter = 22
hole3.DepthType = "Dimension"
hole3.Depth = 20
hole3.DrillPoint = "Angled"
hole3.DrillPointAngle = 118
hole3.Reversed = True

doc.recompute()
